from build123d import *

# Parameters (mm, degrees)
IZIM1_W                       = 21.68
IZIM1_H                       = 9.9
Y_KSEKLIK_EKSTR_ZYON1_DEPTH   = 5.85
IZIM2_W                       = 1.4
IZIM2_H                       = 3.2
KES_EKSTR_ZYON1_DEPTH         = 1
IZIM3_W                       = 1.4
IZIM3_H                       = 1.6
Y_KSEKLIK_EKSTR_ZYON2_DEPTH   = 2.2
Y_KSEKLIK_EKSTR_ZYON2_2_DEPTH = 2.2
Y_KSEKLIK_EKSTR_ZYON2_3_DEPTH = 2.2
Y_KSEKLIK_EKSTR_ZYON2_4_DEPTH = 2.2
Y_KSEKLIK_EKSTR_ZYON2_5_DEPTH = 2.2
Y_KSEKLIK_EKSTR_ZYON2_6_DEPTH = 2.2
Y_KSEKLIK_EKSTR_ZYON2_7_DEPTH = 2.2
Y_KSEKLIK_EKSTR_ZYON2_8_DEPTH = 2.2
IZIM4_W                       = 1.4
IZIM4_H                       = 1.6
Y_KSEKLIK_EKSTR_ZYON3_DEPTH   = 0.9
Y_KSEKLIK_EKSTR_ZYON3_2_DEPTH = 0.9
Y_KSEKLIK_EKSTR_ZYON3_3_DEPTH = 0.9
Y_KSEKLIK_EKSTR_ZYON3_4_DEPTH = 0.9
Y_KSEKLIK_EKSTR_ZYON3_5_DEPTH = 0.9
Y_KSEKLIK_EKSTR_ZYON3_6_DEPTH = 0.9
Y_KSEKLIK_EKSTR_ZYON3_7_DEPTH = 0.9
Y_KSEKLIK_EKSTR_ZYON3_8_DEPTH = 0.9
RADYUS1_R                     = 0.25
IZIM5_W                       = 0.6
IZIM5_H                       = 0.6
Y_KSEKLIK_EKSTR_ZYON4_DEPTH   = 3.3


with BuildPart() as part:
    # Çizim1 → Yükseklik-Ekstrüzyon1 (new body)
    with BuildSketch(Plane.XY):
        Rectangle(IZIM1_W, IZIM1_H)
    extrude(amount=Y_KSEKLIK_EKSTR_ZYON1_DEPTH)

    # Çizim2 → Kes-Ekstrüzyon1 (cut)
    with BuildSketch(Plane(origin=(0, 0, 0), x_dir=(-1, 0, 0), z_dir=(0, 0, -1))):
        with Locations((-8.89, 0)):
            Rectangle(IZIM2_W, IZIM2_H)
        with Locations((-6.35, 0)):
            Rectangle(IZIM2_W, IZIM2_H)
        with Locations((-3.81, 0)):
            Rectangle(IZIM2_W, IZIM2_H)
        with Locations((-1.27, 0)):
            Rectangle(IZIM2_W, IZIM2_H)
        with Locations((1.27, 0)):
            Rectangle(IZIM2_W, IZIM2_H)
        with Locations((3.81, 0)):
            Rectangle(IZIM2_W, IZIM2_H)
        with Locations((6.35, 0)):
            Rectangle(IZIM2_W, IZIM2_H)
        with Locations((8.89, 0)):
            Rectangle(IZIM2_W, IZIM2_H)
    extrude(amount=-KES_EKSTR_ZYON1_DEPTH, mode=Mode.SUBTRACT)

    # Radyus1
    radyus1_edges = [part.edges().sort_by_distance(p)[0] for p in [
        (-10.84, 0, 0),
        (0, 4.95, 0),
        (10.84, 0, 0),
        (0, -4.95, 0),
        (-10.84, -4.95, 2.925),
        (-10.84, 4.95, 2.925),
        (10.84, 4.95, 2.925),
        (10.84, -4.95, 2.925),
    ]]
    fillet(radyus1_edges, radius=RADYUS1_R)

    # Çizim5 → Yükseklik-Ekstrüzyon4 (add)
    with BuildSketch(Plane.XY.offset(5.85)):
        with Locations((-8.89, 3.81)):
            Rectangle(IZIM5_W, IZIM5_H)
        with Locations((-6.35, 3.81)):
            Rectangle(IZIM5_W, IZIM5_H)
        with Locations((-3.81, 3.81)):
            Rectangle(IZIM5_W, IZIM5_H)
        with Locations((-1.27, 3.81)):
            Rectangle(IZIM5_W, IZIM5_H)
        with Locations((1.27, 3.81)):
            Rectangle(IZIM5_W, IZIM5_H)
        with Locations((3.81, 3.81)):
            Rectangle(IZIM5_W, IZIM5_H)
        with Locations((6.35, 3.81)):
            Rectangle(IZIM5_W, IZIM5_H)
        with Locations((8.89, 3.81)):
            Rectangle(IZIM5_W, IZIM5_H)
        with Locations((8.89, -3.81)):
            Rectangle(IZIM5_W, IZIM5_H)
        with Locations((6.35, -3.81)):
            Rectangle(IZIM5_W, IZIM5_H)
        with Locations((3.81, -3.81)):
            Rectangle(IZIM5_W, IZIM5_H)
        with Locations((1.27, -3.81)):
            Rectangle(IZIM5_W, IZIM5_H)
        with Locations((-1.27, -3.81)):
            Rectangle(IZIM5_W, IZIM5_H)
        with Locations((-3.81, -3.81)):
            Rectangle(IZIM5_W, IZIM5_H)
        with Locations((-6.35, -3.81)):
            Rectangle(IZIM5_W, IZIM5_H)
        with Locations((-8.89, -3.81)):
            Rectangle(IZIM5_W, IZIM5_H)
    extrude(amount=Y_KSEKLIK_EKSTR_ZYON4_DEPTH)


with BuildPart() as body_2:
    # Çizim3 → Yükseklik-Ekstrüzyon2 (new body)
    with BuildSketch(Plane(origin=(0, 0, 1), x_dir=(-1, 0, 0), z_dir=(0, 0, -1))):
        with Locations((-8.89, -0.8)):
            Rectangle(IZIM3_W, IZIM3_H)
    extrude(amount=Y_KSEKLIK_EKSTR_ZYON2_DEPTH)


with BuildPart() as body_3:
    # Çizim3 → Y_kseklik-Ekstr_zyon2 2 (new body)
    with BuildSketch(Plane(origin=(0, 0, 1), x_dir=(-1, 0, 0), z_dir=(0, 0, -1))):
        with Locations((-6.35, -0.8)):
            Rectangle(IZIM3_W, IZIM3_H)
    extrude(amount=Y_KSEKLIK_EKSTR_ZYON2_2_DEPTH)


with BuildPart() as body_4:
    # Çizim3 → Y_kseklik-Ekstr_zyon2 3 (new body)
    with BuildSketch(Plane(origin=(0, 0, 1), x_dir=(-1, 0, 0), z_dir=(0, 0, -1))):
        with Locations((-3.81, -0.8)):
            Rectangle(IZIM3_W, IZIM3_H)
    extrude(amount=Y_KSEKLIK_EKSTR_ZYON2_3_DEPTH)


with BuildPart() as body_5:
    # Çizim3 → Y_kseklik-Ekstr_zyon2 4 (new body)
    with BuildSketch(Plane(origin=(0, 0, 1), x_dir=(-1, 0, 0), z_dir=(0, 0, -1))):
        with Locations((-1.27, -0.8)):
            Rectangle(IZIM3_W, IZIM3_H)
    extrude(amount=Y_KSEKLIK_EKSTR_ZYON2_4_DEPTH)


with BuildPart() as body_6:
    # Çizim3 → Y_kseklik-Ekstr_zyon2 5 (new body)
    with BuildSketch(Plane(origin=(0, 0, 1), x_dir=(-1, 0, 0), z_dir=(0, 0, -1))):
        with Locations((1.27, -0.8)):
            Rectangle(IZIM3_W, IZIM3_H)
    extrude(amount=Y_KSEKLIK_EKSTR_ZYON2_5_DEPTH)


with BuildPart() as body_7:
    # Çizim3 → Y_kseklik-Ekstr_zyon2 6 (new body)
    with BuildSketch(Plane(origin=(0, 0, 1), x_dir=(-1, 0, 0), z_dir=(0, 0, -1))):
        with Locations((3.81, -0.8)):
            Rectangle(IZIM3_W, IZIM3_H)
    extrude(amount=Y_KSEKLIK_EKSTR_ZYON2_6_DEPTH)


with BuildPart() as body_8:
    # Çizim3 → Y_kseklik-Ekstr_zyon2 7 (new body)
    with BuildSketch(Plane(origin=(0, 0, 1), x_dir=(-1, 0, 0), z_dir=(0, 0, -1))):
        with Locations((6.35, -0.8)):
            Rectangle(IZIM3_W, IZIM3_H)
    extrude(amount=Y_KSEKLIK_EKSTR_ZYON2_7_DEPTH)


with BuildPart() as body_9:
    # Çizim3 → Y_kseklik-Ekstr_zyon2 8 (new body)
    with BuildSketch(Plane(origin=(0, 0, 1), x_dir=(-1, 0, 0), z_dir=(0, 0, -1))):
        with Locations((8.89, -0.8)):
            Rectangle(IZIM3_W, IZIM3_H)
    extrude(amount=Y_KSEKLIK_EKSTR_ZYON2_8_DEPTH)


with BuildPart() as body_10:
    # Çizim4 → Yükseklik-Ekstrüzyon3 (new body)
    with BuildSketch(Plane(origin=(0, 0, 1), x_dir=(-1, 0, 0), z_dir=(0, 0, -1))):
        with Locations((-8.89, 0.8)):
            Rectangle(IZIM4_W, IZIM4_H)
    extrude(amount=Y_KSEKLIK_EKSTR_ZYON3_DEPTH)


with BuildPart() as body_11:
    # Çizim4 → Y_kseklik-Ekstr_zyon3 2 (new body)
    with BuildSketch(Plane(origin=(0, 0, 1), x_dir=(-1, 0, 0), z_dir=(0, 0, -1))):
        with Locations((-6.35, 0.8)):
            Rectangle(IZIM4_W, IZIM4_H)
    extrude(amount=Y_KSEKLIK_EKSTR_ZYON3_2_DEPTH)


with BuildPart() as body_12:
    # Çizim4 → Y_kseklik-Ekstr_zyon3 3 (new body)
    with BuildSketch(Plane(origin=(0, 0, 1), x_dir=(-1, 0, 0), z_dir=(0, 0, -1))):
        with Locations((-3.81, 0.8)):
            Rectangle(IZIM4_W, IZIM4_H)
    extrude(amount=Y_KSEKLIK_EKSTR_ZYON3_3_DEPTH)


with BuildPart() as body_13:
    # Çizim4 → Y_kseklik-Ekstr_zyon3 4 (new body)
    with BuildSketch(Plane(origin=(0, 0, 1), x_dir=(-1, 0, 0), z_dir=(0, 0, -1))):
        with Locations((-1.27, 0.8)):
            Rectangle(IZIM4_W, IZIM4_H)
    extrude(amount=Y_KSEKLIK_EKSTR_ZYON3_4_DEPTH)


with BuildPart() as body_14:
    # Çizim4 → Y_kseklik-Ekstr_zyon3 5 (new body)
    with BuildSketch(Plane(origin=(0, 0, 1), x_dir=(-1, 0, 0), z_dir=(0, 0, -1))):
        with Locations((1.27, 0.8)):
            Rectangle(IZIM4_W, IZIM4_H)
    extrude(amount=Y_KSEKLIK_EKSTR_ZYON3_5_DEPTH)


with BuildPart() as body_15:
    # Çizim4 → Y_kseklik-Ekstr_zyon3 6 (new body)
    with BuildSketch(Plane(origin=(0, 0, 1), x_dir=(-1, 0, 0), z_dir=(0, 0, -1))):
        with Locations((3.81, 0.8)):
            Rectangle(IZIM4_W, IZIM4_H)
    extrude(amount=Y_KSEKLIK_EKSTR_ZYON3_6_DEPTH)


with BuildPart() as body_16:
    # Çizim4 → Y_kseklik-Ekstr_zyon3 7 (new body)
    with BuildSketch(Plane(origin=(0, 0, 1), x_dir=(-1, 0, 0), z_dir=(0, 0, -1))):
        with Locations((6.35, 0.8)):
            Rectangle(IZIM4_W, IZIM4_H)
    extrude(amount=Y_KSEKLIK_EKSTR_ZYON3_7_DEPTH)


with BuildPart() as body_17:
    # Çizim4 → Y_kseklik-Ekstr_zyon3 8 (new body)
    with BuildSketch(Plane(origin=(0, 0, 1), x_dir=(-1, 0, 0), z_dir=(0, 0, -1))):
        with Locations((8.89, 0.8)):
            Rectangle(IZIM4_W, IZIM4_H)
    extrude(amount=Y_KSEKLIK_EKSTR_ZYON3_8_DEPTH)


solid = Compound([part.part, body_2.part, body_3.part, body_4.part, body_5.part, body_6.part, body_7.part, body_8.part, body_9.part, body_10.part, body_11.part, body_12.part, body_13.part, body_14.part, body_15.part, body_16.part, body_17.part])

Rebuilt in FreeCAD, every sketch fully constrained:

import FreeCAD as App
import Part
import Sketcher
Q = App.Units.Quantity


def edges_at(feature, points):
    """Names of the edges that pass closest to the given points."""
    edges = feature.Shape.Edges
    near = lambda p: min(range(len(edges)), key=lambda i: edges[i].distToShape(Part.Vertex(*p))[0])
    return sorted({f"Edge{near(p) + 1}" for p in points})


def add_polygon(sketch, points):
    """Adds a closed chain of lines whose ends are joined by coincident constraints."""
    first, n = sketch.GeometryCount, len(points)
    for a, b in zip(points, points[1:] + points[:1]):
        sketch.addGeometry(Part.LineSegment(App.Vector(*a, 0), App.Vector(*b, 0)), False)
    for i in range(n):
        sketch.addConstraint(Sketcher.Constraint("Coincident", first + i, 2, first + (i + 1) % n, 1))

doc = App.newDocument("Part")
body = doc.addObject("PartDesign::Body", "Body")

# Sketch on XY plane
sketch1 = body.newObject("Sketcher::SketchObject", "Sketch")
sketch1.AttachmentSupport = (doc.getObject("XY_Plane"), [""])
sketch1.MapMode = "FlatFace"
add_polygon(sketch1, [(-10.84, 4.95), (-10.84, -4.95), (10.84, -4.95), (10.84, 4.95)])  # lines 0-3
sketch1.addConstraint(Sketcher.Constraint("Vertical", 0))
sketch1.addConstraint(Sketcher.Constraint("Horizontal", 1))
sketch1.addConstraint(Sketcher.Constraint("Vertical", 2))
sketch1.addConstraint(Sketcher.Constraint("Horizontal", 3))
sketch1.addConstraint(Sketcher.Constraint("Symmetric", 0, 2, 2, 2, -1, 1))
sketch1.addConstraint(Sketcher.Constraint("DistanceY", 0, 2, 0, 1, Q("9.9 mm")))
sketch1.addConstraint(Sketcher.Constraint("DistanceX", 1, 1, 1, 2, Q("21.68 mm")))
pad1 = body.newObject("PartDesign::Pad", "Pad")
pad1.Profile = sketch1
pad1.Length = 5.85

# Sketch on XY plane
sketch2 = body.newObject("Sketcher::SketchObject", "Sketch001")
sketch2.AttachmentSupport = (doc.getObject("XY_Plane"), [""])
sketch2.MapMode = "FlatFace"
add_polygon(sketch2, [(9.59, 1.6), (9.59, -1.6), (8.19, -1.6), (8.19, 1.6)])  # lines 0-3
add_polygon(sketch2, [(7.05, 1.6), (7.05, -1.6), (5.65, -1.6), (5.65, 1.6)])  # lines 4-7
add_polygon(sketch2, [(4.51, 1.6), (4.51, -1.6), (3.11, -1.6), (3.11, 1.6)])  # lines 8-11
add_polygon(sketch2, [(1.97, 1.6), (1.97, -1.6), (0.57, -1.6), (0.57, 1.6)])  # lines 12-15
add_polygon(sketch2, [(-0.57, 1.6), (-0.57, -1.6), (-1.97, -1.6), (-1.97, 1.6)])  # lines 16-19
add_polygon(sketch2, [(-3.11, 1.6), (-3.11, -1.6), (-4.51, -1.6), (-4.51, 1.6)])  # lines 20-23
add_polygon(sketch2, [(-5.65, 1.6), (-5.65, -1.6), (-7.05, -1.6), (-7.05, 1.6)])  # lines 24-27
add_polygon(sketch2, [(-8.19, 1.6), (-8.19, -1.6), (-9.59, -1.6), (-9.59, 1.6)])  # lines 28-31
sketch2.addConstraint(Sketcher.Constraint("Vertical", 0))
sketch2.addConstraint(Sketcher.Constraint("Horizontal", 1))
sketch2.addConstraint(Sketcher.Constraint("Vertical", 2))
sketch2.addConstraint(Sketcher.Constraint("Horizontal", 3))
sketch2.addConstraint(Sketcher.Constraint("Vertical", 4))
sketch2.addConstraint(Sketcher.Constraint("Horizontal", 5))
sketch2.addConstraint(Sketcher.Constraint("Vertical", 6))
sketch2.addConstraint(Sketcher.Constraint("Horizontal", 7))
sketch2.addConstraint(Sketcher.Constraint("Vertical", 8))
sketch2.addConstraint(Sketcher.Constraint("Horizontal", 9))
sketch2.addConstraint(Sketcher.Constraint("Vertical", 10))
sketch2.addConstraint(Sketcher.Constraint("Horizontal", 11))
sketch2.addConstraint(Sketcher.Constraint("Vertical", 12))
sketch2.addConstraint(Sketcher.Constraint("Horizontal", 13))
sketch2.addConstraint(Sketcher.Constraint("Vertical", 14))
sketch2.addConstraint(Sketcher.Constraint("Horizontal", 15))
sketch2.addConstraint(Sketcher.Constraint("Vertical", 16))
sketch2.addConstraint(Sketcher.Constraint("Horizontal", 17))
sketch2.addConstraint(Sketcher.Constraint("Vertical", 18))
sketch2.addConstraint(Sketcher.Constraint("Horizontal", 19))
sketch2.addConstraint(Sketcher.Constraint("Vertical", 20))
sketch2.addConstraint(Sketcher.Constraint("Horizontal", 21))
sketch2.addConstraint(Sketcher.Constraint("Vertical", 22))
sketch2.addConstraint(Sketcher.Constraint("Horizontal", 23))
sketch2.addConstraint(Sketcher.Constraint("Vertical", 24))
sketch2.addConstraint(Sketcher.Constraint("Horizontal", 25))
sketch2.addConstraint(Sketcher.Constraint("Vertical", 26))
sketch2.addConstraint(Sketcher.Constraint("Horizontal", 27))
sketch2.addConstraint(Sketcher.Constraint("Vertical", 28))
sketch2.addConstraint(Sketcher.Constraint("Horizontal", 29))
sketch2.addConstraint(Sketcher.Constraint("Vertical", 30))
sketch2.addConstraint(Sketcher.Constraint("Horizontal", 31))
sketch2.addConstraint(Sketcher.Constraint("Symmetric", 14, 2, 16, 2, -1, 1))
sketch2.addConstraint(Sketcher.Constraint("Symmetric", 12, 2, 18, 2, -1, 1))
sketch2.addConstraint(Sketcher.Constraint("Symmetric", 10, 2, 20, 2, -1, 1))
sketch2.addConstraint(Sketcher.Constraint("Symmetric", 8, 2, 22, 2, -1, 1))
sketch2.addConstraint(Sketcher.Constraint("Symmetric", 6, 2, 24, 2, -1, 1))
sketch2.addConstraint(Sketcher.Constraint("Symmetric", 4, 2, 26, 2, -1, 1))
sketch2.addConstraint(Sketcher.Constraint("Symmetric", 2, 2, 28, 2, -1, 1))
sketch2.addConstraint(Sketcher.Constraint("Symmetric", 0, 2, 30, 2, -1, 1))
sketch2.addConstraint(Sketcher.Constraint("Horizontal", 1, 2, 4, 2))
sketch2.addConstraint(Sketcher.Constraint("Horizontal", 3, 2, 6, 2))
sketch2.addConstraint(Sketcher.Constraint("Horizontal", 5, 2, 8, 2))
sketch2.addConstraint(Sketcher.Constraint("Horizontal", 7, 2, 10, 2))
sketch2.addConstraint(Sketcher.Constraint("Horizontal", 9, 2, 12, 2))
sketch2.addConstraint(Sketcher.Constraint("Horizontal", 11, 2, 14, 2))
sketch2.addConstraint(Sketcher.Constraint("Horizontal", 13, 2, 16, 2))
sketch2.addConstraint(Sketcher.Constraint("Equal", 3, 5))
sketch2.addConstraint(Sketcher.Constraint("Equal", 7, 9))
sketch2.addConstraint(Sketcher.Constraint("Equal", 11, 13))
sketch2.addConstraint(Sketcher.Constraint("DistanceX", 1, 2, 1, 1, Q("1.4 mm")))
sketch2.addConstraint(Sketcher.Constraint("DistanceY", 0, 2, 0, 1, Q("3.2 mm")))
sketch2.addConstraint(Sketcher.Constraint("DistanceX", -1, 1, 0, 2, Q("9.59 mm")))
sketch2.addConstraint(Sketcher.Constraint("DistanceX", -1, 1, 4, 2, Q("7.05 mm")))
sketch2.addConstraint(Sketcher.Constraint("DistanceX", -1, 1, 8, 2, Q("4.51 mm")))
sketch2.addConstraint(Sketcher.Constraint("DistanceX", -1, 1, 12, 2, Q("1.97 mm")))
pocket1 = body.newObject("PartDesign::Pocket", "Pocket")
pocket1.Profile = sketch2
pocket1.Length = 1
pocket1.Reversed = True
doc.recompute()

fillet = body.newObject("PartDesign::Fillet", "Fillet")
fillet.Base = (pocket1, edges_at(pocket1, [
    (-10.84, 0, 0),
    (0, 4.95, 0),
    (10.84, 0, 0),
    (0, -4.95, 0),
    (-10.84, -4.95, 2.925),
    (-10.84, 4.95, 2.925),
    (10.84, 4.95, 2.925),
    (10.84, -4.95, 2.925),
]))
fillet.Radius = 0.25

# Sketch on XY plane
sketch3 = body.newObject("Sketcher::SketchObject", "Sketch002")
sketch3.AttachmentSupport = (doc.getObject("XY_Plane"), [""])
sketch3.MapMode = "FlatFace"
sketch3.AttachmentOffset = App.Placement(App.Vector(0, 0, 5.85), App.Rotation())
add_polygon(sketch3, [(-9.19, 4.11), (-9.19, 3.51), (-8.59, 3.51), (-8.59, 4.11)])  # lines 0-3
add_polygon(sketch3, [(-6.65, 4.11), (-6.65, 3.51), (-6.05, 3.51), (-6.05, 4.11)])  # lines 4-7
add_polygon(sketch3, [(-4.11, 4.11), (-4.11, 3.51), (-3.51, 3.51), (-3.51, 4.11)])  # lines 8-11
add_polygon(sketch3, [(-1.57, 4.11), (-1.57, 3.51), (-0.97, 3.51), (-0.97, 4.11)])  # lines 12-15
add_polygon(sketch3, [(0.97, 4.11), (0.97, 3.51), (1.57, 3.51), (1.57, 4.11)])  # lines 16-19
add_polygon(sketch3, [(3.51, 4.11), (3.51, 3.51), (4.11, 3.51), (4.11, 4.11)])  # lines 20-23
add_polygon(sketch3, [(6.05, 4.11), (6.05, 3.51), (6.65, 3.51), (6.65, 4.11)])  # lines 24-27
add_polygon(sketch3, [(8.59, 4.11), (8.59, 3.51), (9.19, 3.51), (9.19, 4.11)])  # lines 28-31
add_polygon(sketch3, [(8.59, -3.51), (8.59, -4.11), (9.19, -4.11), (9.19, -3.51)])  # lines 32-35
add_polygon(sketch3, [(6.05, -3.51), (6.05, -4.11), (6.65, -4.11), (6.65, -3.51)])  # lines 36-39
add_polygon(sketch3, [(3.51, -3.51), (3.51, -4.11), (4.11, -4.11), (4.11, -3.51)])  # lines 40-43
add_polygon(sketch3, [(0.97, -3.51), (0.97, -4.11), (1.57, -4.11), (1.57, -3.51)])  # lines 44-47
add_polygon(sketch3, [(-1.57, -3.51), (-1.57, -4.11), (-0.97, -4.11), (-0.97, -3.51)])  # lines 48-51
add_polygon(sketch3, [(-4.11, -3.51), (-4.11, -4.11), (-3.51, -4.11), (-3.51, -3.51)])  # lines 52-55
add_polygon(sketch3, [(-6.65, -3.51), (-6.65, -4.11), (-6.05, -4.11), (-6.05, -3.51)])  # lines 56-59
add_polygon(sketch3, [(-9.19, -3.51), (-9.19, -4.11), (-8.59, -4.11), (-8.59, -3.51)])  # lines 60-63
sketch3.addConstraint(Sketcher.Constraint("Vertical", 0))
sketch3.addConstraint(Sketcher.Constraint("Horizontal", 1))
sketch3.addConstraint(Sketcher.Constraint("Vertical", 2))
sketch3.addConstraint(Sketcher.Constraint("Horizontal", 3))
sketch3.addConstraint(Sketcher.Constraint("Vertical", 4))
sketch3.addConstraint(Sketcher.Constraint("Horizontal", 5))
sketch3.addConstraint(Sketcher.Constraint("Vertical", 6))
sketch3.addConstraint(Sketcher.Constraint("Horizontal", 7))
sketch3.addConstraint(Sketcher.Constraint("Vertical", 8))
sketch3.addConstraint(Sketcher.Constraint("Horizontal", 9))
sketch3.addConstraint(Sketcher.Constraint("Vertical", 10))
sketch3.addConstraint(Sketcher.Constraint("Horizontal", 11))
sketch3.addConstraint(Sketcher.Constraint("Vertical", 12))
sketch3.addConstraint(Sketcher.Constraint("Horizontal", 13))
sketch3.addConstraint(Sketcher.Constraint("Vertical", 14))
sketch3.addConstraint(Sketcher.Constraint("Horizontal", 15))
sketch3.addConstraint(Sketcher.Constraint("Vertical", 16))
sketch3.addConstraint(Sketcher.Constraint("Horizontal", 17))
sketch3.addConstraint(Sketcher.Constraint("Vertical", 18))
sketch3.addConstraint(Sketcher.Constraint("Horizontal", 19))
sketch3.addConstraint(Sketcher.Constraint("Vertical", 20))
sketch3.addConstraint(Sketcher.Constraint("Horizontal", 21))
sketch3.addConstraint(Sketcher.Constraint("Vertical", 22))
sketch3.addConstraint(Sketcher.Constraint("Horizontal", 23))
sketch3.addConstraint(Sketcher.Constraint("Vertical", 24))
sketch3.addConstraint(Sketcher.Constraint("Horizontal", 25))
sketch3.addConstraint(Sketcher.Constraint("Vertical", 26))
sketch3.addConstraint(Sketcher.Constraint("Horizontal", 27))
sketch3.addConstraint(Sketcher.Constraint("Vertical", 28))
sketch3.addConstraint(Sketcher.Constraint("Horizontal", 29))
sketch3.addConstraint(Sketcher.Constraint("Vertical", 30))
sketch3.addConstraint(Sketcher.Constraint("Horizontal", 31))
sketch3.addConstraint(Sketcher.Constraint("Vertical", 32))
sketch3.addConstraint(Sketcher.Constraint("Horizontal", 33))
sketch3.addConstraint(Sketcher.Constraint("Vertical", 34))
sketch3.addConstraint(Sketcher.Constraint("Horizontal", 35))
sketch3.addConstraint(Sketcher.Constraint("Vertical", 36))
sketch3.addConstraint(Sketcher.Constraint("Horizontal", 37))
sketch3.addConstraint(Sketcher.Constraint("Vertical", 38))
sketch3.addConstraint(Sketcher.Constraint("Horizontal", 39))
sketch3.addConstraint(Sketcher.Constraint("Vertical", 40))
sketch3.addConstraint(Sketcher.Constraint("Horizontal", 41))
sketch3.addConstraint(Sketcher.Constraint("Vertical", 42))
sketch3.addConstraint(Sketcher.Constraint("Horizontal", 43))
sketch3.addConstraint(Sketcher.Constraint("Vertical", 44))
sketch3.addConstraint(Sketcher.Constraint("Horizontal", 45))
sketch3.addConstraint(Sketcher.Constraint("Vertical", 46))
sketch3.addConstraint(Sketcher.Constraint("Horizontal", 47))
sketch3.addConstraint(Sketcher.Constraint("Vertical", 48))
sketch3.addConstraint(Sketcher.Constraint("Horizontal", 49))
sketch3.addConstraint(Sketcher.Constraint("Vertical", 50))
sketch3.addConstraint(Sketcher.Constraint("Horizontal", 51))
sketch3.addConstraint(Sketcher.Constraint("Vertical", 52))
sketch3.addConstraint(Sketcher.Constraint("Horizontal", 53))
sketch3.addConstraint(Sketcher.Constraint("Vertical", 54))
sketch3.addConstraint(Sketcher.Constraint("Horizontal", 55))
sketch3.addConstraint(Sketcher.Constraint("Vertical", 56))
sketch3.addConstraint(Sketcher.Constraint("Horizontal", 57))
sketch3.addConstraint(Sketcher.Constraint("Vertical", 58))
sketch3.addConstraint(Sketcher.Constraint("Horizontal", 59))
sketch3.addConstraint(Sketcher.Constraint("Vertical", 60))
sketch3.addConstraint(Sketcher.Constraint("Horizontal", 61))
sketch3.addConstraint(Sketcher.Constraint("Vertical", 62))
sketch3.addConstraint(Sketcher.Constraint("Horizontal", 63))
sketch3.addConstraint(Sketcher.Constraint("Symmetric", 2, 2, 32, 2, -1, 1))
sketch3.addConstraint(Sketcher.Constraint("Symmetric", 0, 2, 34, 2, -1, 1))
sketch3.addConstraint(Sketcher.Constraint("Symmetric", 6, 2, 36, 2, -1, 1))
sketch3.addConstraint(Sketcher.Constraint("Symmetric", 4, 2, 38, 2, -1, 1))
sketch3.addConstraint(Sketcher.Constraint("Symmetric", 10, 2, 40, 2, -1, 1))
sketch3.addConstraint(Sketcher.Constraint("Symmetric", 8, 2, 42, 2, -1, 1))
sketch3.addConstraint(Sketcher.Constraint("Symmetric", 14, 2, 44, 2, -1, 1))
sketch3.addConstraint(Sketcher.Constraint("Symmetric", 12, 2, 46, 2, -1, 1))
sketch3.addConstraint(Sketcher.Constraint("Symmetric", 18, 2, 48, 2, -1, 1))
sketch3.addConstraint(Sketcher.Constraint("Symmetric", 16, 2, 50, 2, -1, 1))
sketch3.addConstraint(Sketcher.Constraint("Symmetric", 22, 2, 52, 2, -1, 1))
sketch3.addConstraint(Sketcher.Constraint("Symmetric", 20, 2, 54, 2, -1, 1))
sketch3.addConstraint(Sketcher.Constraint("Symmetric", 26, 2, 56, 2, -1, 1))
sketch3.addConstraint(Sketcher.Constraint("Symmetric", 24, 2, 58, 2, -1, 1))
sketch3.addConstraint(Sketcher.Constraint("Symmetric", 30, 2, 60, 2, -1, 1))
sketch3.addConstraint(Sketcher.Constraint("Symmetric", 28, 2, 62, 2, -1, 1))
sketch3.addConstraint(Sketcher.Constraint("Symmetric", 13, 2, 16, 2, -2))
sketch3.addConstraint(Sketcher.Constraint("Symmetric", 15, 2, 18, 2, -2))
sketch3.addConstraint(Sketcher.Constraint("Symmetric", 9, 2, 20, 2, -2))
sketch3.addConstraint(Sketcher.Constraint("Symmetric", 11, 2, 22, 2, -2))
sketch3.addConstraint(Sketcher.Constraint("Symmetric", 5, 2, 24, 2, -2))
sketch3.addConstraint(Sketcher.Constraint("Symmetric", 7, 2, 26, 2, -2))
sketch3.addConstraint(Sketcher.Constraint("Symmetric", 1, 2, 28, 2, -2))
sketch3.addConstraint(Sketcher.Constraint("Symmetric", 3, 2, 30, 2, -2))
sketch3.addConstraint(Sketcher.Constraint("Horizontal", 1, 2, 4, 2))
sketch3.addConstraint(Sketcher.Constraint("Horizontal", 3, 2, 6, 2))
sketch3.addConstraint(Sketcher.Constraint("Horizontal", 5, 2, 8, 2))
sketch3.addConstraint(Sketcher.Constraint("Horizontal", 7, 2, 10, 2))
sketch3.addConstraint(Sketcher.Constraint("Horizontal", 9, 2, 12, 2))
sketch3.addConstraint(Sketcher.Constraint("Horizontal", 11, 2, 14, 2))
sketch3.addConstraint(Sketcher.Constraint("Equal", 3, 5))
sketch3.addConstraint(Sketcher.Constraint("Equal", 7, 9))
sketch3.addConstraint(Sketcher.Constraint("Equal", 11, 13))
sketch3.addConstraint(Sketcher.Constraint("Equal", 63, 0))
sketch3.addConstraint(Sketcher.Constraint("DistanceX", 1, 1, 1, 2, Q("0.6 mm")))
sketch3.addConstraint(Sketcher.Constraint("DistanceX", 0, 2, -1, 1, Q("9.19 mm")))
sketch3.addConstraint(Sketcher.Constraint("DistanceY", -1, 1, 0, 2, Q("3.51 mm")))
sketch3.addConstraint(Sketcher.Constraint("DistanceX", 4, 2, -1, 1, Q("6.65 mm")))
sketch3.addConstraint(Sketcher.Constraint("DistanceX", 8, 2, -1, 1, Q("4.11 mm")))
sketch3.addConstraint(Sketcher.Constraint("DistanceX", 12, 2, -1, 1, Q("1.57 mm")))
pad2 = body.newObject("PartDesign::Pad", "Pad001")
pad2.Profile = sketch3
pad2.Length = 3.3
body2 = doc.addObject("PartDesign::Body", "Body001")

# Sketch on XY plane
sketch4 = body2.newObject("Sketcher::SketchObject", "Sketch003")
sketch4.AttachmentSupport = (doc.getObject("XY_Plane001"), [""])
sketch4.MapMode = "FlatFace"
sketch4.AttachmentOffset = App.Placement(App.Vector(0, 0, 1), App.Rotation())
add_polygon(sketch4, [(9.59, 0), (9.59, -1.6), (8.19, -1.6), (8.19, 0)])  # lines 0-3
sketch4.addConstraint(Sketcher.Constraint("Vertical", 0))
sketch4.addConstraint(Sketcher.Constraint("Horizontal", 1))
sketch4.addConstraint(Sketcher.Constraint("Vertical", 2))
sketch4.addConstraint(Sketcher.Constraint("Horizontal", 3))
sketch4.addConstraint(Sketcher.Constraint("PointOnObject", 2, 2, -1))
sketch4.addConstraint(Sketcher.Constraint("DistanceX", 1, 2, 1, 1, Q("1.4 mm")))
sketch4.addConstraint(Sketcher.Constraint("DistanceY", 0, 2, 0, 1, Q("1.6 mm")))
sketch4.addConstraint(Sketcher.Constraint("DistanceX", -1, 1, 0, 2, Q("9.59 mm")))
pad3 = body2.newObject("PartDesign::Pad", "Pad002")
pad3.Profile = sketch4
pad3.Length = 2.2
pad3.Reversed = True
body3 = doc.addObject("PartDesign::Body", "Body002")

# Sketch on XY plane
sketch5 = body3.newObject("Sketcher::SketchObject", "Sketch004")
sketch5.AttachmentSupport = (doc.getObject("XY_Plane002"), [""])
sketch5.MapMode = "FlatFace"
sketch5.AttachmentOffset = App.Placement(App.Vector(0, 0, 1), App.Rotation())
add_polygon(sketch5, [(7.05, 0), (7.05, -1.6), (5.65, -1.6), (5.65, 0)])  # lines 0-3
sketch5.addConstraint(Sketcher.Constraint("Vertical", 0))
sketch5.addConstraint(Sketcher.Constraint("Horizontal", 1))
sketch5.addConstraint(Sketcher.Constraint("Vertical", 2))
sketch5.addConstraint(Sketcher.Constraint("Horizontal", 3))
sketch5.addConstraint(Sketcher.Constraint("PointOnObject", 2, 2, -1))
sketch5.addConstraint(Sketcher.Constraint("DistanceX", 1, 2, 1, 1, Q("1.4 mm")))
sketch5.addConstraint(Sketcher.Constraint("DistanceY", 0, 2, 0, 1, Q("1.6 mm")))
sketch5.addConstraint(Sketcher.Constraint("DistanceX", -1, 1, 0, 2, Q("7.05 mm")))
pad4 = body3.newObject("PartDesign::Pad", "Pad003")
pad4.Profile = sketch5
pad4.Length = 2.2
pad4.Reversed = True
body4 = doc.addObject("PartDesign::Body", "Body003")

# Sketch on XY plane
sketch6 = body4.newObject("Sketcher::SketchObject", "Sketch005")
sketch6.AttachmentSupport = (doc.getObject("XY_Plane003"), [""])
sketch6.MapMode = "FlatFace"
sketch6.AttachmentOffset = App.Placement(App.Vector(0, 0, 1), App.Rotation())
add_polygon(sketch6, [(4.51, 0), (4.51, -1.6), (3.11, -1.6), (3.11, 0)])  # lines 0-3
sketch6.addConstraint(Sketcher.Constraint("Vertical", 0))
sketch6.addConstraint(Sketcher.Constraint("Horizontal", 1))
sketch6.addConstraint(Sketcher.Constraint("Vertical", 2))
sketch6.addConstraint(Sketcher.Constraint("Horizontal", 3))
sketch6.addConstraint(Sketcher.Constraint("PointOnObject", 2, 2, -1))
sketch6.addConstraint(Sketcher.Constraint("DistanceX", 1, 2, 1, 1, Q("1.4 mm")))
sketch6.addConstraint(Sketcher.Constraint("DistanceY", 0, 2, 0, 1, Q("1.6 mm")))
sketch6.addConstraint(Sketcher.Constraint("DistanceX", -1, 1, 0, 2, Q("4.51 mm")))
pad5 = body4.newObject("PartDesign::Pad", "Pad004")
pad5.Profile = sketch6
pad5.Length = 2.2
pad5.Reversed = True
body5 = doc.addObject("PartDesign::Body", "Body004")

# Sketch on XY plane
sketch7 = body5.newObject("Sketcher::SketchObject", "Sketch006")
sketch7.AttachmentSupport = (doc.getObject("XY_Plane004"), [""])
sketch7.MapMode = "FlatFace"
sketch7.AttachmentOffset = App.Placement(App.Vector(0, 0, 1), App.Rotation())
add_polygon(sketch7, [(1.97, 0), (1.97, -1.6), (0.57, -1.6), (0.57, 0)])  # lines 0-3
sketch7.addConstraint(Sketcher.Constraint("Vertical", 0))
sketch7.addConstraint(Sketcher.Constraint("Horizontal", 1))
sketch7.addConstraint(Sketcher.Constraint("Vertical", 2))
sketch7.addConstraint(Sketcher.Constraint("Horizontal", 3))
sketch7.addConstraint(Sketcher.Constraint("PointOnObject", 2, 2, -1))
sketch7.addConstraint(Sketcher.Constraint("DistanceX", 1, 2, 1, 1, Q("1.4 mm")))
sketch7.addConstraint(Sketcher.Constraint("DistanceY", 0, 2, 0, 1, Q("1.6 mm")))
sketch7.addConstraint(Sketcher.Constraint("DistanceX", -1, 1, 0, 2, Q("1.97 mm")))
pad6 = body5.newObject("PartDesign::Pad", "Pad005")
pad6.Profile = sketch7
pad6.Length = 2.2
pad6.Reversed = True
body6 = doc.addObject("PartDesign::Body", "Body005")

# Sketch on XY plane
sketch8 = body6.newObject("Sketcher::SketchObject", "Sketch007")
sketch8.AttachmentSupport = (doc.getObject("XY_Plane005"), [""])
sketch8.MapMode = "FlatFace"
sketch8.AttachmentOffset = App.Placement(App.Vector(0, 0, 1), App.Rotation())
add_polygon(sketch8, [(-0.57, 0), (-0.57, -1.6), (-1.97, -1.6), (-1.97, 0)])  # lines 0-3
sketch8.addConstraint(Sketcher.Constraint("Vertical", 0))
sketch8.addConstraint(Sketcher.Constraint("Horizontal", 1))
sketch8.addConstraint(Sketcher.Constraint("Vertical", 2))
sketch8.addConstraint(Sketcher.Constraint("Horizontal", 3))
sketch8.addConstraint(Sketcher.Constraint("PointOnObject", 2, 2, -1))
sketch8.addConstraint(Sketcher.Constraint("DistanceX", 1, 2, 1, 1, Q("1.4 mm")))
sketch8.addConstraint(Sketcher.Constraint("DistanceY", 0, 2, 0, 1, Q("1.6 mm")))
sketch8.addConstraint(Sketcher.Constraint("DistanceX", 0, 2, -1, 1, Q("0.57 mm")))
pad7 = body6.newObject("PartDesign::Pad", "Pad006")
pad7.Profile = sketch8
pad7.Length = 2.2
pad7.Reversed = True
body7 = doc.addObject("PartDesign::Body", "Body006")

# Sketch on XY plane
sketch9 = body7.newObject("Sketcher::SketchObject", "Sketch008")
sketch9.AttachmentSupport = (doc.getObject("XY_Plane006"), [""])
sketch9.MapMode = "FlatFace"
sketch9.AttachmentOffset = App.Placement(App.Vector(0, 0, 1), App.Rotation())
add_polygon(sketch9, [(-3.11, 0), (-3.11, -1.6), (-4.51, -1.6), (-4.51, 0)])  # lines 0-3
sketch9.addConstraint(Sketcher.Constraint("Vertical", 0))
sketch9.addConstraint(Sketcher.Constraint("Horizontal", 1))
sketch9.addConstraint(Sketcher.Constraint("Vertical", 2))
sketch9.addConstraint(Sketcher.Constraint("Horizontal", 3))
sketch9.addConstraint(Sketcher.Constraint("PointOnObject", 2, 2, -1))
sketch9.addConstraint(Sketcher.Constraint("DistanceX", 1, 2, 1, 1, Q("1.4 mm")))
sketch9.addConstraint(Sketcher.Constraint("DistanceY", 0, 2, 0, 1, Q("1.6 mm")))
sketch9.addConstraint(Sketcher.Constraint("DistanceX", 0, 2, -1, 1, Q("3.11 mm")))
pad8 = body7.newObject("PartDesign::Pad", "Pad007")
pad8.Profile = sketch9
pad8.Length = 2.2
pad8.Reversed = True
body8 = doc.addObject("PartDesign::Body", "Body007")

# Sketch on XY plane
sketch10 = body8.newObject("Sketcher::SketchObject", "Sketch009")
sketch10.AttachmentSupport = (doc.getObject("XY_Plane007"), [""])
sketch10.MapMode = "FlatFace"
sketch10.AttachmentOffset = App.Placement(App.Vector(0, 0, 1), App.Rotation())
add_polygon(sketch10, [(-5.65, 0), (-5.65, -1.6), (-7.05, -1.6), (-7.05, 0)])  # lines 0-3
sketch10.addConstraint(Sketcher.Constraint("Vertical", 0))
sketch10.addConstraint(Sketcher.Constraint("Horizontal", 1))
sketch10.addConstraint(Sketcher.Constraint("Vertical", 2))
sketch10.addConstraint(Sketcher.Constraint("Horizontal", 3))
sketch10.addConstraint(Sketcher.Constraint("PointOnObject", 2, 2, -1))
sketch10.addConstraint(Sketcher.Constraint("DistanceX", 1, 2, 1, 1, Q("1.4 mm")))
sketch10.addConstraint(Sketcher.Constraint("DistanceY", 0, 2, 0, 1, Q("1.6 mm")))
sketch10.addConstraint(Sketcher.Constraint("DistanceX", 0, 2, -1, 1, Q("5.65 mm")))
pad9 = body8.newObject("PartDesign::Pad", "Pad008")
pad9.Profile = sketch10
pad9.Length = 2.2
pad9.Reversed = True
body9 = doc.addObject("PartDesign::Body", "Body008")

# Sketch on XY plane
sketch11 = body9.newObject("Sketcher::SketchObject", "Sketch010")
sketch11.AttachmentSupport = (doc.getObject("XY_Plane008"), [""])
sketch11.MapMode = "FlatFace"
sketch11.AttachmentOffset = App.Placement(App.Vector(0, 0, 1), App.Rotation())
add_polygon(sketch11, [(-8.19, 0), (-8.19, -1.6), (-9.59, -1.6), (-9.59, 0)])  # lines 0-3
sketch11.addConstraint(Sketcher.Constraint("Vertical", 0))
sketch11.addConstraint(Sketcher.Constraint("Horizontal", 1))
sketch11.addConstraint(Sketcher.Constraint("Vertical", 2))
sketch11.addConstraint(Sketcher.Constraint("Horizontal", 3))
sketch11.addConstraint(Sketcher.Constraint("PointOnObject", 2, 2, -1))
sketch11.addConstraint(Sketcher.Constraint("DistanceX", 1, 2, 1, 1, Q("1.4 mm")))
sketch11.addConstraint(Sketcher.Constraint("DistanceY", 0, 2, 0, 1, Q("1.6 mm")))
sketch11.addConstraint(Sketcher.Constraint("DistanceX", 0, 2, -1, 1, Q("8.19 mm")))
pad10 = body9.newObject("PartDesign::Pad", "Pad009")
pad10.Profile = sketch11
pad10.Length = 2.2
pad10.Reversed = True
body10 = doc.addObject("PartDesign::Body", "Body009")

# Sketch on XY plane
sketch12 = body10.newObject("Sketcher::SketchObject", "Sketch011")
sketch12.AttachmentSupport = (doc.getObject("XY_Plane009"), [""])
sketch12.MapMode = "FlatFace"
sketch12.AttachmentOffset = App.Placement(App.Vector(0, 0, 1), App.Rotation())
add_polygon(sketch12, [(9.59, 1.6), (9.59, 0), (8.19, 0), (8.19, 1.6)])  # lines 0-3
sketch12.addConstraint(Sketcher.Constraint("Vertical", 0))
sketch12.addConstraint(Sketcher.Constraint("Horizontal", 1))
sketch12.addConstraint(Sketcher.Constraint("Vertical", 2))
sketch12.addConstraint(Sketcher.Constraint("Horizontal", 3))
sketch12.addConstraint(Sketcher.Constraint("PointOnObject", 0, 2, -1))
sketch12.addConstraint(Sketcher.Constraint("DistanceX", 1, 2, 1, 1, Q("1.4 mm")))
sketch12.addConstraint(Sketcher.Constraint("DistanceY", 0, 2, 0, 1, Q("1.6 mm")))
sketch12.addConstraint(Sketcher.Constraint("DistanceX", -1, 1, 0, 2, Q("9.59 mm")))
pad11 = body10.newObject("PartDesign::Pad", "Pad010")
pad11.Profile = sketch12
pad11.Length = 0.9
pad11.Reversed = True
body11 = doc.addObject("PartDesign::Body", "Body010")

# Sketch on XY plane
sketch13 = body11.newObject("Sketcher::SketchObject", "Sketch012")
sketch13.AttachmentSupport = (doc.getObject("XY_Plane010"), [""])
sketch13.MapMode = "FlatFace"
sketch13.AttachmentOffset = App.Placement(App.Vector(0, 0, 1), App.Rotation())
add_polygon(sketch13, [(7.05, 1.6), (7.05, 0), (5.65, 0), (5.65, 1.6)])  # lines 0-3
sketch13.addConstraint(Sketcher.Constraint("Vertical", 0))
sketch13.addConstraint(Sketcher.Constraint("Horizontal", 1))
sketch13.addConstraint(Sketcher.Constraint("Vertical", 2))
sketch13.addConstraint(Sketcher.Constraint("Horizontal", 3))
sketch13.addConstraint(Sketcher.Constraint("PointOnObject", 0, 2, -1))
sketch13.addConstraint(Sketcher.Constraint("DistanceX", 1, 2, 1, 1, Q("1.4 mm")))
sketch13.addConstraint(Sketcher.Constraint("DistanceY", 0, 2, 0, 1, Q("1.6 mm")))
sketch13.addConstraint(Sketcher.Constraint("DistanceX", -1, 1, 0, 2, Q("7.05 mm")))
pad12 = body11.newObject("PartDesign::Pad", "Pad011")
pad12.Profile = sketch13
pad12.Length = 0.9
pad12.Reversed = True
body12 = doc.addObject("PartDesign::Body", "Body011")

# Sketch on XY plane
sketch14 = body12.newObject("Sketcher::SketchObject", "Sketch013")
sketch14.AttachmentSupport = (doc.getObject("XY_Plane011"), [""])
sketch14.MapMode = "FlatFace"
sketch14.AttachmentOffset = App.Placement(App.Vector(0, 0, 1), App.Rotation())
add_polygon(sketch14, [(4.51, 1.6), (4.51, 0), (3.11, 0), (3.11, 1.6)])  # lines 0-3
sketch14.addConstraint(Sketcher.Constraint("Vertical", 0))
sketch14.addConstraint(Sketcher.Constraint("Horizontal", 1))
sketch14.addConstraint(Sketcher.Constraint("Vertical", 2))
sketch14.addConstraint(Sketcher.Constraint("Horizontal", 3))
sketch14.addConstraint(Sketcher.Constraint("PointOnObject", 0, 2, -1))
sketch14.addConstraint(Sketcher.Constraint("DistanceX", 1, 2, 1, 1, Q("1.4 mm")))
sketch14.addConstraint(Sketcher.Constraint("DistanceY", 0, 2, 0, 1, Q("1.6 mm")))
sketch14.addConstraint(Sketcher.Constraint("DistanceX", -1, 1, 0, 2, Q("4.51 mm")))
pad13 = body12.newObject("PartDesign::Pad", "Pad012")
pad13.Profile = sketch14
pad13.Length = 0.9
pad13.Reversed = True
body13 = doc.addObject("PartDesign::Body", "Body012")

# Sketch on XY plane
sketch15 = body13.newObject("Sketcher::SketchObject", "Sketch014")
sketch15.AttachmentSupport = (doc.getObject("XY_Plane012"), [""])
sketch15.MapMode = "FlatFace"
sketch15.AttachmentOffset = App.Placement(App.Vector(0, 0, 1), App.Rotation())
add_polygon(sketch15, [(1.97, 1.6), (1.97, 0), (0.57, 0), (0.57, 1.6)])  # lines 0-3
sketch15.addConstraint(Sketcher.Constraint("Vertical", 0))
sketch15.addConstraint(Sketcher.Constraint("Horizontal", 1))
sketch15.addConstraint(Sketcher.Constraint("Vertical", 2))
sketch15.addConstraint(Sketcher.Constraint("Horizontal", 3))
sketch15.addConstraint(Sketcher.Constraint("PointOnObject", 0, 2, -1))
sketch15.addConstraint(Sketcher.Constraint("DistanceX", 1, 2, 1, 1, Q("1.4 mm")))
sketch15.addConstraint(Sketcher.Constraint("DistanceY", 0, 2, 0, 1, Q("1.6 mm")))
sketch15.addConstraint(Sketcher.Constraint("DistanceX", -1, 1, 0, 2, Q("1.97 mm")))
pad14 = body13.newObject("PartDesign::Pad", "Pad013")
pad14.Profile = sketch15
pad14.Length = 0.9
pad14.Reversed = True
body14 = doc.addObject("PartDesign::Body", "Body013")

# Sketch on XY plane
sketch16 = body14.newObject("Sketcher::SketchObject", "Sketch015")
sketch16.AttachmentSupport = (doc.getObject("XY_Plane013"), [""])
sketch16.MapMode = "FlatFace"
sketch16.AttachmentOffset = App.Placement(App.Vector(0, 0, 1), App.Rotation())
add_polygon(sketch16, [(-0.57, 1.6), (-0.57, 0), (-1.97, 0), (-1.97, 1.6)])  # lines 0-3
sketch16.addConstraint(Sketcher.Constraint("Vertical", 0))
sketch16.addConstraint(Sketcher.Constraint("Horizontal", 1))
sketch16.addConstraint(Sketcher.Constraint("Vertical", 2))
sketch16.addConstraint(Sketcher.Constraint("Horizontal", 3))
sketch16.addConstraint(Sketcher.Constraint("PointOnObject", 0, 2, -1))
sketch16.addConstraint(Sketcher.Constraint("DistanceX", 1, 2, 1, 1, Q("1.4 mm")))
sketch16.addConstraint(Sketcher.Constraint("DistanceY", 0, 2, 0, 1, Q("1.6 mm")))
sketch16.addConstraint(Sketcher.Constraint("DistanceX", 0, 2, -1, 1, Q("0.57 mm")))
pad15 = body14.newObject("PartDesign::Pad", "Pad014")
pad15.Profile = sketch16
pad15.Length = 0.9
pad15.Reversed = True
body15 = doc.addObject("PartDesign::Body", "Body014")

# Sketch on XY plane
sketch17 = body15.newObject("Sketcher::SketchObject", "Sketch016")
sketch17.AttachmentSupport = (doc.getObject("XY_Plane014"), [""])
sketch17.MapMode = "FlatFace"
sketch17.AttachmentOffset = App.Placement(App.Vector(0, 0, 1), App.Rotation())
add_polygon(sketch17, [(-3.11, 1.6), (-3.11, 0), (-4.51, 0), (-4.51, 1.6)])  # lines 0-3
sketch17.addConstraint(Sketcher.Constraint("Vertical", 0))
sketch17.addConstraint(Sketcher.Constraint("Horizontal", 1))
sketch17.addConstraint(Sketcher.Constraint("Vertical", 2))
sketch17.addConstraint(Sketcher.Constraint("Horizontal", 3))
sketch17.addConstraint(Sketcher.Constraint("PointOnObject", 0, 2, -1))
sketch17.addConstraint(Sketcher.Constraint("DistanceX", 1, 2, 1, 1, Q("1.4 mm")))
sketch17.addConstraint(Sketcher.Constraint("DistanceY", 0, 2, 0, 1, Q("1.6 mm")))
sketch17.addConstraint(Sketcher.Constraint("DistanceX", 0, 2, -1, 1, Q("3.11 mm")))
pad16 = body15.newObject("PartDesign::Pad", "Pad015")
pad16.Profile = sketch17
pad16.Length = 0.9
pad16.Reversed = True
body16 = doc.addObject("PartDesign::Body", "Body015")

# Sketch on XY plane
sketch18 = body16.newObject("Sketcher::SketchObject", "Sketch017")
sketch18.AttachmentSupport = (doc.getObject("XY_Plane015"), [""])
sketch18.MapMode = "FlatFace"
sketch18.AttachmentOffset = App.Placement(App.Vector(0, 0, 1), App.Rotation())
add_polygon(sketch18, [(-5.65, 1.6), (-5.65, 0), (-7.05, 0), (-7.05, 1.6)])  # lines 0-3
sketch18.addConstraint(Sketcher.Constraint("Vertical", 0))
sketch18.addConstraint(Sketcher.Constraint("Horizontal", 1))
sketch18.addConstraint(Sketcher.Constraint("Vertical", 2))
sketch18.addConstraint(Sketcher.Constraint("Horizontal", 3))
sketch18.addConstraint(Sketcher.Constraint("PointOnObject", 0, 2, -1))
sketch18.addConstraint(Sketcher.Constraint("DistanceX", 1, 2, 1, 1, Q("1.4 mm")))
sketch18.addConstraint(Sketcher.Constraint("DistanceY", 0, 2, 0, 1, Q("1.6 mm")))
sketch18.addConstraint(Sketcher.Constraint("DistanceX", 0, 2, -1, 1, Q("5.65 mm")))
pad17 = body16.newObject("PartDesign::Pad", "Pad016")
pad17.Profile = sketch18
pad17.Length = 0.9
pad17.Reversed = True
body17 = doc.addObject("PartDesign::Body", "Body016")

# Sketch on XY plane
sketch19 = body17.newObject("Sketcher::SketchObject", "Sketch018")
sketch19.AttachmentSupport = (doc.getObject("XY_Plane016"), [""])
sketch19.MapMode = "FlatFace"
sketch19.AttachmentOffset = App.Placement(App.Vector(0, 0, 1), App.Rotation())
add_polygon(sketch19, [(-8.19, 1.6), (-8.19, 0), (-9.59, 0), (-9.59, 1.6)])  # lines 0-3
sketch19.addConstraint(Sketcher.Constraint("Vertical", 0))
sketch19.addConstraint(Sketcher.Constraint("Horizontal", 1))
sketch19.addConstraint(Sketcher.Constraint("Vertical", 2))
sketch19.addConstraint(Sketcher.Constraint("Horizontal", 3))
sketch19.addConstraint(Sketcher.Constraint("PointOnObject", 0, 2, -1))
sketch19.addConstraint(Sketcher.Constraint("DistanceX", 1, 2, 1, 1, Q("1.4 mm")))
sketch19.addConstraint(Sketcher.Constraint("DistanceY", 0, 2, 0, 1, Q("1.6 mm")))
sketch19.addConstraint(Sketcher.Constraint("DistanceX", 0, 2, -1, 1, Q("8.19 mm")))
pad18 = body17.newObject("PartDesign::Pad", "Pad017")
pad18.Profile = sketch19
pad18.Length = 0.9
pad18.Reversed = True

doc.recompute()
